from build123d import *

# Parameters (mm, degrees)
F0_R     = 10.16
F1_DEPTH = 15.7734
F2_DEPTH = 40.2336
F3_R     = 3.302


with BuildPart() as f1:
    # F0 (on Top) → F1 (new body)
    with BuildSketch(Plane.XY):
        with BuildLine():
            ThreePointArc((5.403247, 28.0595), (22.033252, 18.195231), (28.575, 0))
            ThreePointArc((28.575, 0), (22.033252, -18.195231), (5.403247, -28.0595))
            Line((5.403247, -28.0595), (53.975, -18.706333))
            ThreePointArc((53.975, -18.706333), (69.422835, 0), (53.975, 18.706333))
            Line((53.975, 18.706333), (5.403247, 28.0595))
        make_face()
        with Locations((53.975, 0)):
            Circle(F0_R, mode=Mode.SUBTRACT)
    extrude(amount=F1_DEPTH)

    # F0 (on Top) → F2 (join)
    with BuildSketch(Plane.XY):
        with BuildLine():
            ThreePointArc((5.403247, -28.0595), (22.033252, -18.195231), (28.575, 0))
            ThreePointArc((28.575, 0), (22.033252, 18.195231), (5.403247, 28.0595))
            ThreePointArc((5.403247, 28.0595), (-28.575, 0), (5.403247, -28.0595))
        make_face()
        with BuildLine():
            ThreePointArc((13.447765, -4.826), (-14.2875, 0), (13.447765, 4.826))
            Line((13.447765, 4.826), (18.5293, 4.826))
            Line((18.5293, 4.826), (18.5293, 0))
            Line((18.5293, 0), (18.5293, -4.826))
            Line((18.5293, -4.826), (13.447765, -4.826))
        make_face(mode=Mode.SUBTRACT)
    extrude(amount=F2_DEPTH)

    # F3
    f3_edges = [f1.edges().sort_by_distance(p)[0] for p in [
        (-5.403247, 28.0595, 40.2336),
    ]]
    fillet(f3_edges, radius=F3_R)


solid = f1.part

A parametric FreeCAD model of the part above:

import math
import FreeCAD as App
import Part
import Sketcher
Q = App.Units.Quantity


def edges_at(feature, points):
    """Names of the edges that pass closest to the given points."""
    edges = feature.Shape.Edges
    near = lambda p: min(range(len(edges)), key=lambda i: edges[i].distToShape(Part.Vertex(*p))[0])
    return sorted({f"Edge{near(p) + 1}" for p in points})

doc = App.newDocument("Part")
body = doc.addObject("PartDesign::Body", "Body")

# Sketch on XY plane
sketch1 = doc.addObject("Sketcher::SketchObject", "Sketch")
body.addObject(sketch1)
sketch1.AttachmentSupport = (doc.XY_Plane, [""])
sketch1.MapMode = "FlatFace"
sketch1.addGeometry(Part.ArcOfCircle(Part.Circle(App.Vector(0, 0, 0), App.Vector(0, 0, 1), 29), math.radians(0), math.radians(79)), False)
sketch1.addGeometry(Part.ArcOfCircle(Part.Circle(App.Vector(0, 0, 0), App.Vector(0, 0, 1), 29), math.radians(-79), math.radians(0)), False)
sketch1.addGeometry(Part.LineSegment(App.Vector(5, -28, 0), App.Vector(54, -19, 0)), False)
sketch1.addGeometry(Part.ArcOfCircle(Part.Circle(App.Vector(50, 0, 0), App.Vector(0, 0, 1), 19), math.radians(-79), math.radians(79)), False)
sketch1.addGeometry(Part.LineSegment(App.Vector(54, 19, 0), App.Vector(5, 28, 0)), False)
sketch1.addGeometry(Part.Circle(App.Vector(54, 0, 0), App.Vector(0, 0, 1), 10), False)
sketch1.addConstraint(Sketcher.Constraint("Tangent", 0, 1, 1, 2))
sketch1.addConstraint(Sketcher.Constraint("Tangent", 1, 1, 2, 1))
sketch1.addConstraint(Sketcher.Constraint("Tangent", 2, 2, 3, 1))
sketch1.addConstraint(Sketcher.Constraint("Tangent", 3, 2, 4, 1))
sketch1.addConstraint(Sketcher.Constraint("Tangent", 4, 2, 0, 2))
sketch1.addConstraint(Sketcher.Constraint("Coincident", 0, 3, -1, 1))
sketch1.addConstraint(Sketcher.Constraint("Equal", 0, 1))
sketch1.addConstraint(Sketcher.Constraint("PointOnObject", 3, 3, -1))
sketch1.addConstraint(Sketcher.Constraint("PointOnObject", 5, 3, -1))
sketch1.addConstraint(Sketcher.Constraint("PointOnObject", 0, 1, -1))
sketch1.addConstraint(Sketcher.Constraint("Vertical", 5, 3, 2, 2))
sketch1.addConstraint(Sketcher.Constraint("Diameter", 5, Q("0.8 in")))
sketch1.addConstraint(Sketcher.Constraint("Radius", 3, Q("0.75 in")))
sketch1.addConstraint(Sketcher.Constraint("Radius", 0, Q("1.125 in")))
sketch1.addConstraint(Sketcher.Constraint("DistanceX", 0, 1, 5, 3, Q("1 in")))
pad1 = doc.addObject("PartDesign::Pad", "Pad")
body.addObject(pad1)
pad1.Profile = sketch1
pad1.Length = Q("0.621 in")

# Sketch on XY plane
sketch2 = doc.addObject("Sketcher::SketchObject", "Sketch001")
body.addObject(sketch2)
sketch2.AttachmentSupport = (doc.XY_Plane, [""])
sketch2.MapMode = "FlatFace"
sketch2.addGeometry(Part.ArcOfCircle(Part.Circle(App.Vector(0, 0, 0), App.Vector(0, 0, 1), 29), math.radians(-79), math.radians(0)), False)
sketch2.addGeometry(Part.ArcOfCircle(Part.Circle(App.Vector(0, 0, 0), App.Vector(0, 0, 1), 29), math.radians(0), math.radians(79)), False)
sketch2.addGeometry(Part.ArcOfCircle(Part.Circle(App.Vector(0, 0, 0), App.Vector(0, 0, 1), 29), math.radians(79), math.radians(281)), False)
sketch2.addGeometry(Part.LineSegment(App.Vector(19, -5, 0), App.Vector(13, -5, 0)), False)
sketch2.addGeometry(Part.ArcOfCircle(Part.Circle(App.Vector(0, 0, 0), App.Vector(0, 0, 1), 14), math.radians(20), math.radians(340)), False)
sketch2.addGeometry(Part.LineSegment(App.Vector(13, 5, 0), App.Vector(19, 5, 0)), False)
sketch2.addGeometry(Part.LineSegment(App.Vector(19, 5, 0), App.Vector(19, -5, 0)), False)
sketch2.addConstraint(Sketcher.Constraint("Tangent", 0, 2, 1, 1))
sketch2.addConstraint(Sketcher.Constraint("Tangent", 1, 2, 2, 1))
sketch2.addConstraint(Sketcher.Constraint("Tangent", 2, 2, 0, 1))
sketch2.addConstraint(Sketcher.Constraint("Coincident", 3, 2, 4, 2))
sketch2.addConstraint(Sketcher.Constraint("Coincident", 4, 1, 5, 1))
sketch2.addConstraint(Sketcher.Constraint("Coincident", 5, 2, 6, 1))
sketch2.addConstraint(Sketcher.Constraint("Coincident", 6, 2, 3, 1))
sketch2.addConstraint(Sketcher.Constraint("Horizontal", 3))
sketch2.addConstraint(Sketcher.Constraint("Horizontal", 5))
sketch2.addConstraint(Sketcher.Constraint("Vertical", 6))
sketch2.addConstraint(Sketcher.Constraint("Coincident", 0, 3, -1, 1))
sketch2.addConstraint(Sketcher.Constraint("Coincident", 4, 3, -1, 1))
sketch2.addConstraint(Sketcher.Constraint("PointOnObject", 0, 2, -1))
sketch2.addConstraint(Sketcher.Constraint("Vertical", 1, 2, 2, 2))
sketch2.addConstraint(Sketcher.Constraint("Vertical", 3, 2, 4, 1))
sketch2.addConstraint(Sketcher.Constraint("Radius", 0, Q("1.125 in")))
sketch2.addConstraint(Sketcher.Constraint("Radius", 4, Q("0.5625 in")))
sketch2.addConstraint(Sketcher.Constraint("DistanceY", 6, 2, 6, 1, Q("0.38 in")))
sketch2.addConstraint(Sketcher.Constraint("DistanceX", -1, 1, 5, 2, Q("0.7295 in")))
sketch2.addConstraint(Sketcher.Constraint("DistanceY", -1, 1, 1, 2, 28.0595))
pad2 = doc.addObject("PartDesign::Pad", "Pad001")
body.addObject(pad2)
pad2.Profile = sketch2
pad2.Length = Q("1.584 in")
doc.recompute()

fillet = doc.addObject("PartDesign::Fillet", "Fillet")
body.addObject(fillet)
fillet.Base = (pad2, edges_at(pad2, [(-28.575, 0, 40.234)]))
fillet.Radius = Q("0.13 in")

doc.recompute()
